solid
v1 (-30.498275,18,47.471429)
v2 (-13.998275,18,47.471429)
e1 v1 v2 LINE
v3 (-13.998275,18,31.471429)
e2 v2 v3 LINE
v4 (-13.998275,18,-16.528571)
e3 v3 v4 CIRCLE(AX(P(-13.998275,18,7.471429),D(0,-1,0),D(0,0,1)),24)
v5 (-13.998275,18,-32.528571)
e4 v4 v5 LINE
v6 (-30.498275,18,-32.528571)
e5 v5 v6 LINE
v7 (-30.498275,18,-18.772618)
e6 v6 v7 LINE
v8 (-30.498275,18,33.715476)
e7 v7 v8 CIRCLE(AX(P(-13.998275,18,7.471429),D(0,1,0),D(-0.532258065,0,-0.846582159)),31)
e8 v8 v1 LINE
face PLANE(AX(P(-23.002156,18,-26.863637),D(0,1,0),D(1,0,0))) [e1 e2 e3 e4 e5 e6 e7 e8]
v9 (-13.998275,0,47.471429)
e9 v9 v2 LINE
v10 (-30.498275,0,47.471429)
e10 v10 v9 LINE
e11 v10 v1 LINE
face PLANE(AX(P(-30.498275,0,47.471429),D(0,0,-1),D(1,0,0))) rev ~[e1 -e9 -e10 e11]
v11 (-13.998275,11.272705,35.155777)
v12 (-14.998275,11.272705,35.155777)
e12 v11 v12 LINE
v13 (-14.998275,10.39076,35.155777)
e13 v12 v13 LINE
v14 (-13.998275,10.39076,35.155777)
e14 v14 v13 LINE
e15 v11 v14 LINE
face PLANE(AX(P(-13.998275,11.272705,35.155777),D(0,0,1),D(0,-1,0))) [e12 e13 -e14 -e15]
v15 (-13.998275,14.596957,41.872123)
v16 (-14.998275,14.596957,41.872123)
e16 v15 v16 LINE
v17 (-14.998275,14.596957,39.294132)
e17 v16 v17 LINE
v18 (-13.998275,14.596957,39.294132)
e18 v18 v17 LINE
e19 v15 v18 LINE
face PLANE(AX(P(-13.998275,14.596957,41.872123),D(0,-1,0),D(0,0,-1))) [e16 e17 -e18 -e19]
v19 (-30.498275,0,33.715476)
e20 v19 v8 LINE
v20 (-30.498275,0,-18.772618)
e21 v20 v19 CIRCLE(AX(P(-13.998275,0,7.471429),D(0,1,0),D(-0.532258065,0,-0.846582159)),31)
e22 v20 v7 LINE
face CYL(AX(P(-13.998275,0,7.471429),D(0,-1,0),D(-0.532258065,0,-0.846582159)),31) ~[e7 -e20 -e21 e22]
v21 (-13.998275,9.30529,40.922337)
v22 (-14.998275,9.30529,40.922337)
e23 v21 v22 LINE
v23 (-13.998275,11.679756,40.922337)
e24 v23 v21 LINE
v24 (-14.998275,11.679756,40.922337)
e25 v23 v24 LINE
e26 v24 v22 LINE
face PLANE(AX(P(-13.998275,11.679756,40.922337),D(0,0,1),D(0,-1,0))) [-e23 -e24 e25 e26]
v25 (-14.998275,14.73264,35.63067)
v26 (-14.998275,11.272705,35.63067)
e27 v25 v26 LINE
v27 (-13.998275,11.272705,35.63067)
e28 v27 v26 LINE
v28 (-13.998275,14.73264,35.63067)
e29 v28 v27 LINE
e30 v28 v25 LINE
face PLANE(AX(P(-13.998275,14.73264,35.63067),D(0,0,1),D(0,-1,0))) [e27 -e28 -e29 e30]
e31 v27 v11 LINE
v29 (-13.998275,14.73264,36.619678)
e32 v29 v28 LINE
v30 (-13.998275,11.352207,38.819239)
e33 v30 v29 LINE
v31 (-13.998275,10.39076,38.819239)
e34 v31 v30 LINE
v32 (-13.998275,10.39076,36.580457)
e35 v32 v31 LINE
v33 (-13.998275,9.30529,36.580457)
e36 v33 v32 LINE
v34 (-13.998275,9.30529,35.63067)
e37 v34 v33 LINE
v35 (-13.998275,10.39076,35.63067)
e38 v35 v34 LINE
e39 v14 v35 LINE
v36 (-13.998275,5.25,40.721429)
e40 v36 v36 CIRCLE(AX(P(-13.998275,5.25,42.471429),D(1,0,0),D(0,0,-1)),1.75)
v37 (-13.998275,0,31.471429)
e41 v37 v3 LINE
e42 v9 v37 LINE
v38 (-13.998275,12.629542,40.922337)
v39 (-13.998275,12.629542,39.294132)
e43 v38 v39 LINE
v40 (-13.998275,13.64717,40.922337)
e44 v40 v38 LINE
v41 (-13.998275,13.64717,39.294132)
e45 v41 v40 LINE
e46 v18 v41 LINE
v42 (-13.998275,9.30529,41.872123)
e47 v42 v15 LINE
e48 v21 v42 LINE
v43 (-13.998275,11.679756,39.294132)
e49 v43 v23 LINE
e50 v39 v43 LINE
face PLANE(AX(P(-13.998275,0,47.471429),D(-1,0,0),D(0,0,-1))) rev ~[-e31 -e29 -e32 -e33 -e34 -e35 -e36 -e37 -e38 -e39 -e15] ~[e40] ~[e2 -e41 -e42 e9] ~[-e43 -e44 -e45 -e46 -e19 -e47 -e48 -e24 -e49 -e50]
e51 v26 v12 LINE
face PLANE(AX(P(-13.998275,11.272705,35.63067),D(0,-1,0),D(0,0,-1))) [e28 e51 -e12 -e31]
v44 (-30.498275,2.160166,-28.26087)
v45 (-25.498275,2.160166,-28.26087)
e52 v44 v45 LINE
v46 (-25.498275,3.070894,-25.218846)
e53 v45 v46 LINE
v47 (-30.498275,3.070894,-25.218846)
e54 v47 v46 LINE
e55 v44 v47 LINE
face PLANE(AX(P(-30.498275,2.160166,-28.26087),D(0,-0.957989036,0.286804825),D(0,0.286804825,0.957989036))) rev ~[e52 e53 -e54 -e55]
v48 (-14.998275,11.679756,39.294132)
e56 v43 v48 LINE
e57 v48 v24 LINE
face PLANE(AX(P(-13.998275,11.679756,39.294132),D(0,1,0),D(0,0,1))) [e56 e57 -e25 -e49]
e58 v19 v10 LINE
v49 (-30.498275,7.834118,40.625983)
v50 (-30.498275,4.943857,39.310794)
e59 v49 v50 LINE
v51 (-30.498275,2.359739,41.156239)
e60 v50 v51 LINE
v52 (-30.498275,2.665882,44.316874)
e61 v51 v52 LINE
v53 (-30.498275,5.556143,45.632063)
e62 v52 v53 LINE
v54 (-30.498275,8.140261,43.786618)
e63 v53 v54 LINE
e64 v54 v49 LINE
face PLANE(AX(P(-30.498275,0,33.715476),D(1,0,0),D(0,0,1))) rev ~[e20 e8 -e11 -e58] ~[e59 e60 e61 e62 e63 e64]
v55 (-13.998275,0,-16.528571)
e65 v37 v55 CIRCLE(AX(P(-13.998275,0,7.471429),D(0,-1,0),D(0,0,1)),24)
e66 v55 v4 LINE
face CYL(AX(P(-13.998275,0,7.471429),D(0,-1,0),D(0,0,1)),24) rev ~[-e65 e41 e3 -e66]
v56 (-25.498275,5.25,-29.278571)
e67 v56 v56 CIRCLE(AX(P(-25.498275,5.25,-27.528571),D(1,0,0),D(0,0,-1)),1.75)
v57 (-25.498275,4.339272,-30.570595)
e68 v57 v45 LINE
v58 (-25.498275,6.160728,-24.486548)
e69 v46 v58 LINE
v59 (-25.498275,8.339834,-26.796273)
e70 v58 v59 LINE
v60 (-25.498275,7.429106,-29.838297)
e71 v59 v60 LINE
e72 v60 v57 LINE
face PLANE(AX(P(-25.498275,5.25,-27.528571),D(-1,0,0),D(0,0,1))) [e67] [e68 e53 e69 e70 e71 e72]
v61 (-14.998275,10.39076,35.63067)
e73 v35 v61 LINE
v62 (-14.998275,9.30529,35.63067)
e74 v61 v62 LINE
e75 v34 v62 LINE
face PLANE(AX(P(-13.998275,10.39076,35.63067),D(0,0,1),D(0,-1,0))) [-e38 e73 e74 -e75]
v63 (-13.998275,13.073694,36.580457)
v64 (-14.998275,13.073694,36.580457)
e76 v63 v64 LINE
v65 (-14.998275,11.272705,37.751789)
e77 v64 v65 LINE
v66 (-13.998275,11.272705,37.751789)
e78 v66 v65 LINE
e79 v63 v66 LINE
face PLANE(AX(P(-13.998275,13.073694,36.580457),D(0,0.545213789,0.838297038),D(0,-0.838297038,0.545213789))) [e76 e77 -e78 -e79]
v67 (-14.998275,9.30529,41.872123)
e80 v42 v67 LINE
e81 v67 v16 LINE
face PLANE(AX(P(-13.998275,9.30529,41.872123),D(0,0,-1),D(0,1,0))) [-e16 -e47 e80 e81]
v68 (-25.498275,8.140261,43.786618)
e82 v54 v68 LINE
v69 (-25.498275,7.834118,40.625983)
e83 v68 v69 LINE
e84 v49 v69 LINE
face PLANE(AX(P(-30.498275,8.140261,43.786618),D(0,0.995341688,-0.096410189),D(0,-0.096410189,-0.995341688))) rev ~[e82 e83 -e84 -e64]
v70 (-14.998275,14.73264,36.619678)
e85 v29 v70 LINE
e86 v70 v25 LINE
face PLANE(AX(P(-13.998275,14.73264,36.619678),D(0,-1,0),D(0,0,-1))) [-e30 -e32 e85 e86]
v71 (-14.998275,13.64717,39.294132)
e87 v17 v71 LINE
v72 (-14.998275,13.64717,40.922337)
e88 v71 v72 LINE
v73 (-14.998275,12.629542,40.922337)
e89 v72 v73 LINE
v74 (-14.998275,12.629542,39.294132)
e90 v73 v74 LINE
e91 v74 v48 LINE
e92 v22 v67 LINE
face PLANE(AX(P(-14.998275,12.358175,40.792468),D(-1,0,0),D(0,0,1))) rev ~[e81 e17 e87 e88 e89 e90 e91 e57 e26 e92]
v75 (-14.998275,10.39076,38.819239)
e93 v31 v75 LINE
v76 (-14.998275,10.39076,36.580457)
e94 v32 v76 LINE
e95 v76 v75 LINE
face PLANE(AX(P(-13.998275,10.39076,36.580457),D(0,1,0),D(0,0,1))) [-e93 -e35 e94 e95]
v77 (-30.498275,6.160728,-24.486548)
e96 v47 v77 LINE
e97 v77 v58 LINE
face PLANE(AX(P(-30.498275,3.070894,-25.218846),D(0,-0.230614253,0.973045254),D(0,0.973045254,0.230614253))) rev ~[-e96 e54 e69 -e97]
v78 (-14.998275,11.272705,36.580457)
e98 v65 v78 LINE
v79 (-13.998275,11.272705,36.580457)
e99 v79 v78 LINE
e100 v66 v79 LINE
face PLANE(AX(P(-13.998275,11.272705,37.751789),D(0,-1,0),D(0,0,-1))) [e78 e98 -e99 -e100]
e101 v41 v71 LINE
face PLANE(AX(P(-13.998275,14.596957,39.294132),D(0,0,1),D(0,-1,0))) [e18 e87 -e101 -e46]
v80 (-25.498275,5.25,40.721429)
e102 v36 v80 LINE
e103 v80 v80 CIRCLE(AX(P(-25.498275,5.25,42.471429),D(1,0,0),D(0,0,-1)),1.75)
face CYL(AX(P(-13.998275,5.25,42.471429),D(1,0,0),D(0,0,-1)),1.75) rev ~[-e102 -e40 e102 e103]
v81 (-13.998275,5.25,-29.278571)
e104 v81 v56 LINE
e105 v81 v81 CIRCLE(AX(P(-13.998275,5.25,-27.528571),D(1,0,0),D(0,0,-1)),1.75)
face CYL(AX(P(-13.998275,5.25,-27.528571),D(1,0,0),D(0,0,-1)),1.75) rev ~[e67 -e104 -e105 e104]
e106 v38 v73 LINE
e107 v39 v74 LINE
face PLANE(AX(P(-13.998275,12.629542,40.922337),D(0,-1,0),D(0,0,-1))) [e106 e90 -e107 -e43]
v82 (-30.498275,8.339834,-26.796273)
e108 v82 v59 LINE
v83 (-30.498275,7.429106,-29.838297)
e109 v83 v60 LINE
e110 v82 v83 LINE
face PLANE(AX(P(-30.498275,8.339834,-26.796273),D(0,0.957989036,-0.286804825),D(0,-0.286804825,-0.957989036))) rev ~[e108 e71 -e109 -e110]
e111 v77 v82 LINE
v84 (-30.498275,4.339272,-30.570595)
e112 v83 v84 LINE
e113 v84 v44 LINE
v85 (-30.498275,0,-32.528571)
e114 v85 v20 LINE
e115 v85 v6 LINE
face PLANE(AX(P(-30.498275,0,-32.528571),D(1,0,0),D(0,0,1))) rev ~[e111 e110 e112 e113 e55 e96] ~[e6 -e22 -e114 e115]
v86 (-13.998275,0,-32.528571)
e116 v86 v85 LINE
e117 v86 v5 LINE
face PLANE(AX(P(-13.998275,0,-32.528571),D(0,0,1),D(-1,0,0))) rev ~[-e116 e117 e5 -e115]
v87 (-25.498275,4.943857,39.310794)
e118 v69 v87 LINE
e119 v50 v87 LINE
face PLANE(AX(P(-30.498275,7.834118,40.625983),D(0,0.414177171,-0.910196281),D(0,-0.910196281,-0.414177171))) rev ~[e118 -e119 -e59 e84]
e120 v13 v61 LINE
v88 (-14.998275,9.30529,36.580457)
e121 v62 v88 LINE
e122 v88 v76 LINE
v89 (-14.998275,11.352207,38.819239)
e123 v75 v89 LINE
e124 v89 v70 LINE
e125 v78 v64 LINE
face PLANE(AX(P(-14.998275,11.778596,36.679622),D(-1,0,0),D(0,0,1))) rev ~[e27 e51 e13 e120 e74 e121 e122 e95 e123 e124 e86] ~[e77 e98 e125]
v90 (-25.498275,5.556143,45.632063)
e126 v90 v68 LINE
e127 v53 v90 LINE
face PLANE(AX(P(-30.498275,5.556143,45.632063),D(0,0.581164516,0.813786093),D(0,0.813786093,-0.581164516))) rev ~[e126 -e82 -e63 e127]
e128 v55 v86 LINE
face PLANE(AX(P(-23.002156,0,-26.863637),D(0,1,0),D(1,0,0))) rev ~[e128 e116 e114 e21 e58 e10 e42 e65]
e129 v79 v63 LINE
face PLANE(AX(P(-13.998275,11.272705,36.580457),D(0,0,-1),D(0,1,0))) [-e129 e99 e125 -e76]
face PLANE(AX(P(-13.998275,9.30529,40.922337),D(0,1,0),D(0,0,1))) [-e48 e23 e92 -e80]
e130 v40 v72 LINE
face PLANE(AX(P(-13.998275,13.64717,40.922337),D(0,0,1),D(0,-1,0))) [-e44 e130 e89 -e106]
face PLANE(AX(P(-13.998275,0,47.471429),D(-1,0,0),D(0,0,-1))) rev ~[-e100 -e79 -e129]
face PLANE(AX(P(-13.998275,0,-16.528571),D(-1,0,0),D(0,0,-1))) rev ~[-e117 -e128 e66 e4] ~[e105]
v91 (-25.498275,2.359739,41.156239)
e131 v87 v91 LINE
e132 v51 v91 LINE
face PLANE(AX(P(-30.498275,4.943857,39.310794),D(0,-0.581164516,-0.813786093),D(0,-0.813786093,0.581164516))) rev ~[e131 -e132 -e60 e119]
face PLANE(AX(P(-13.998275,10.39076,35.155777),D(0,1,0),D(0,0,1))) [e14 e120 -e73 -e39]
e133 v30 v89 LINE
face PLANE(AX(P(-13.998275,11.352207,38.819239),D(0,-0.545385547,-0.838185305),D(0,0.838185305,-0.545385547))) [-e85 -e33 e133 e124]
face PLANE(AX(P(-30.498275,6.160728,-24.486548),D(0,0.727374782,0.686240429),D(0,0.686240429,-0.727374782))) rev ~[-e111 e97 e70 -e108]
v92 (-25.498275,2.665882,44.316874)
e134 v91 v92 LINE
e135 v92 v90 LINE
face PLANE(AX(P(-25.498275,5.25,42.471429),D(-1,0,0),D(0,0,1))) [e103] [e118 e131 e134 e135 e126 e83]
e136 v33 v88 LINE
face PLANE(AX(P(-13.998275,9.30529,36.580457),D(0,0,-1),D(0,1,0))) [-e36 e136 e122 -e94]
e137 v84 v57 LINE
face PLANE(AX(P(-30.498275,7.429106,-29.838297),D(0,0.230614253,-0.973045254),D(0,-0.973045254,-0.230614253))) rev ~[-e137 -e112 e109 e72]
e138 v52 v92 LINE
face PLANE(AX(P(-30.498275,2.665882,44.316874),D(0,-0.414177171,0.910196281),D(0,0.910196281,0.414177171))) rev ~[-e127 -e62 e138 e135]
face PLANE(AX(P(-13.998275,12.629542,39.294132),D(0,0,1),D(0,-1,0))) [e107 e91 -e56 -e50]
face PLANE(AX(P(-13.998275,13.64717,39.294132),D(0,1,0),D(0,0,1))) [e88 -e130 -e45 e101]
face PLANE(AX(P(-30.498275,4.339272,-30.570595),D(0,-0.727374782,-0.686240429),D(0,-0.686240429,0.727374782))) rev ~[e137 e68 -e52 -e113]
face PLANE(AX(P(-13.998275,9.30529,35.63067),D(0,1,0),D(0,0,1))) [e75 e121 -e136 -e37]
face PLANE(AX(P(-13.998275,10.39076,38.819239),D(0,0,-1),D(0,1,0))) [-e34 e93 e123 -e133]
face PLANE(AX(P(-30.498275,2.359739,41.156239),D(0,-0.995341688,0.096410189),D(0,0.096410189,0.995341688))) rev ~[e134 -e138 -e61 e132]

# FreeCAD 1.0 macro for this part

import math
import FreeCAD as App
import Part
import Sketcher

V = App.Vector


def add_polygon(sketch, points):
    """Adds a closed chain of lines whose ends are joined by coincident constraints."""
    first, n = sketch.GeometryCount, len(points)
    for a, b in zip(points, points[1:] + points[:1]):
        sketch.addGeometry(Part.LineSegment(App.Vector(*a, 0), App.Vector(*b, 0)), False)
    for i in range(n):
        sketch.addConstraint(Sketcher.Constraint("Coincident", first + i, 2, first + (i + 1) % n, 1))

doc = App.newDocument("Part")
params = doc.addObject("Spreadsheet::Sheet", "Params")
for row, (alias, value) in enumerate([
    ("sketch1_radius", "31 mm"),
    ("sketch1_radius2", "24 mm"),
    ("sketch1_height", "16 mm"),
    ("sketch1_width", "16.5 mm"),
    ("pad1_length", "18 mm"),
    ("sketch2_diameter", "3.5 mm"),
    ("pocket2_length", "1 mm"),
    ("pocket3_length", "5 mm"),
], start=1):
    params.set(f"A{row}", alias)
    params.set(f"B{row}", "=" + value)
    params.setAlias(f"B{row}", alias)

body = doc.addObject("PartDesign::Body", "Body")

sketch1 = doc.addObject("Sketcher::SketchObject", "Sketch")
body.addObject(sketch1)
sketch1.AttachmentSupport = (doc.XZ_Plane, [""])
sketch1.MapMode = "FlatFace"
sketch1.addGeometry([
    Part.LineSegment(V(-14, -33, 0), V(-30, -33, 0)),
    Part.LineSegment(V(-30, -33, 0), V(-30, -19, 0)),
    Part.ArcOfCircle(Part.Circle(V(-14, 7, 0), V(0, 0, 1), 31), math.radians(122), math.radians(238)),
    Part.LineSegment(V(-30, 34, 0), V(-30, 47, 0)),
    Part.LineSegment(V(-30, 47, 0), V(-14, 47, 0)),
    Part.LineSegment(V(-14, 47, 0), V(-14, 31, 0)),
    Part.ArcOfCircle(Part.Circle(V(-14, 7, 0), V(0, 0, 1), 24), math.radians(90), math.radians(270)),
    Part.LineSegment(V(-14, -17, 0), V(-14, -33, 0)),
], False)
sketch1.addConstraint([
    Sketcher.Constraint("Coincident", 0, 2, 1, 1),
    Sketcher.Constraint("Coincident", 1, 2, 2, 2),
    Sketcher.Constraint("Coincident", 2, 1, 3, 1),
    Sketcher.Constraint("Coincident", 3, 2, 4, 1),
    Sketcher.Constraint("Coincident", 4, 2, 5, 1),
    Sketcher.Constraint("Coincident", 5, 2, 6, 1),
    Sketcher.Constraint("Coincident", 6, 2, 7, 1),
    Sketcher.Constraint("Coincident", 7, 2, 0, 1),
    Sketcher.Constraint("Horizontal", 0),
    Sketcher.Constraint("Vertical", 1),
    Sketcher.Constraint("Vertical", 3),
    Sketcher.Constraint("Horizontal", 4),
    Sketcher.Constraint("Vertical", 5),
    Sketcher.Constraint("Vertical", 7),
    Sketcher.Constraint("Coincident", 6, 3, 2, 3),
    Sketcher.Constraint("Vertical", 1, 2, 2, 1),
    Sketcher.Constraint("Vertical", 6, 3, 4, 2),
    Sketcher.Constraint("Vertical", 5, 2, 6, 2),
    Sketcher.Constraint("Equal", 1, 3),
    Sketcher.Constraint("Radius", 2, 31.0),
    Sketcher.Constraint("Radius", 6, 24.0),
    Sketcher.Constraint("DistanceY", 5, 2, 5, 1, 16.0),
    Sketcher.Constraint("DistanceX", 0, 2, 0, 1, 16.5),
    Sketcher.Constraint("DistanceY", -1, 1, 2, 3, 7.471429),
    Sketcher.Constraint("DistanceX", 2, 3, -1, 1, 13.998275),
])
sketch1.setExpression("Constraints[19]", "Params.sketch1_radius")
sketch1.setExpression("Constraints[20]", "Params.sketch1_radius2")
sketch1.setExpression("Constraints[21]", "Params.sketch1_height")
sketch1.setExpression("Constraints[22]", "Params.sketch1_width")
pad1 = doc.addObject("PartDesign::Pad", "Pad")
body.addObject(pad1)
pad1.Profile = sketch1
pad1.setExpression("Length", "Params.pad1_length")
pad1.Reversed = True

sketch2 = doc.addObject("Sketcher::SketchObject", "Sketch001")
body.addObject(sketch2)
sketch2.AttachmentSupport = (doc.YZ_Plane, [""])
sketch2.MapMode = "FlatFace"
sketch2.AttachmentOffset = App.Placement(V(0, 0, -13.998275), App.Rotation())
sketch2.addGeometry([
    Part.Circle(V(5.2, 42.5, 0), V(0, 0, 1), 1.8),
    Part.Circle(V(5.2, -27.5, 0), V(0, 0, 1), 1.8),
], False)
sketch2.addConstraint([
    Sketcher.Constraint("Equal", 0, 1),
    Sketcher.Constraint("Vertical", 0, 3, 1, 3),
    Sketcher.Constraint("Diameter", 0, 3.5),
    Sketcher.Constraint("DistanceY", 1, 3, 0, 3, 70.0),
    Sketcher.Constraint("DistanceX", -1, 1, 0, 3, 5.25),
    Sketcher.Constraint("DistanceY", -1, 1, 0, 3, 42.471429),
])
sketch2.setExpression("Constraints[2]", "Params.sketch2_diameter")
pocket1 = doc.addObject("PartDesign::Pocket", "Pocket")
body.addObject(pocket1)
pocket1.Profile = sketch2
pocket1.Type = "ThroughAll"

sketch3 = doc.addObject("Sketcher::SketchObject", "Sketch002")
body.addObject(sketch3)
sketch3.AttachmentSupport = (doc.YZ_Plane, [""])
sketch3.MapMode = "FlatFace"
sketch3.AttachmentOffset = App.Placement(V(0, 0, -13.998275), App.Rotation())
add_polygon(sketch3, [(14.6, 39.29), (14.6, 41.87), (9.31, 41.87), (9.31, 40.92), (11.68, 40.92), (11.68, 39.29), (12.63, 39.29), (12.63, 40.92), (13.65, 40.92), (13.65, 39.29)])
add_polygon(sketch3, [(14.73, 35.63), (14.73, 36.62), (11.35, 38.82), (10.39, 38.82), (10.39, 36.58), (9.31, 36.58), (9.31, 35.63), (10.39, 35.63), (10.39, 35.16), (11.27, 35.16), (11.27, 35.63)])
add_polygon(sketch3, [(11.27, 36.58), (11.27, 37.75), (13.07, 36.58)])
sketch3.addConstraint([
    Sketcher.Constraint("Vertical", 0),
    Sketcher.Constraint("Horizontal", 1),
    Sketcher.Constraint("Vertical", 2),
    Sketcher.Constraint("Horizontal", 3),
    Sketcher.Constraint("Vertical", 4),
    Sketcher.Constraint("Horizontal", 5),
    Sketcher.Constraint("Vertical", 6),
    Sketcher.Constraint("Horizontal", 7),
    Sketcher.Constraint("Vertical", 8),
    Sketcher.Constraint("Horizontal", 9),
    Sketcher.Constraint("Vertical", 10),
    Sketcher.Constraint("Horizontal", 12),
    Sketcher.Constraint("Vertical", 13),
    Sketcher.Constraint("Horizontal", 14),
    Sketcher.Constraint("Vertical", 15),
    Sketcher.Constraint("Horizontal", 16),
    Sketcher.Constraint("Vertical", 17),
    Sketcher.Constraint("Horizontal", 18),
    Sketcher.Constraint("Vertical", 19),
    Sketcher.Constraint("Horizontal", 20),
    Sketcher.Constraint("Vertical", 21),
    Sketcher.Constraint("Horizontal", 23),
    Sketcher.Constraint("Horizontal", 3, 2, 6, 2),
    Sketcher.Constraint("Horizontal", 5, 2, 8, 2),
    Sketcher.Constraint("Horizontal", 16, 2, 19, 2),
    Sketcher.Constraint("Horizontal", 14, 2, 22, 2),
    Sketcher.Constraint("Vertical", 2, 2, 14, 2),
    Sketcher.Constraint("Vertical", 13, 2, 16, 2),
    Sketcher.Constraint("Vertical", 19, 2, 21, 2),
    Sketcher.Constraint("Equal", 5, 9),
    Sketcher.Constraint("Equal", 9, 2),
    Sketcher.Constraint("Equal", 2, 15),
    Sketcher.Constraint("DistanceX", 7, 1, 7, 2, 1.017628),
    Sketcher.Constraint("DistanceX", 14, 2, 14, 1, 1.08547),
    Sketcher.Constraint("DistanceX", 23, 2, 23, 1, 1.80099),
    Sketcher.Constraint("DistanceY", 0, 1, 0, 2, 2.577991),
    Sketcher.Constraint("DistanceX", 3, 2, 0, 2, 2.917201),
    Sketcher.Constraint("DistanceX", 5, 2, 10, 2, 2.103098),
    Sketcher.Constraint("DistanceY", 11, 2, 3, 2, 2.103098),
    Sketcher.Constraint("Distance", 11, 4.033039),
    Sketcher.Constraint("Distance", 22, 2.148391),
    Sketcher.Constraint("DistanceX", 1, 2, 1, 1, 5.291667),
    Sketcher.Constraint("DistanceX", 12, 2, 12, 1, 0.961447),
    Sketcher.Constraint("DistanceX", 18, 1, 18, 2, 0.881944),
    Sketcher.Constraint("DistanceY", 10, 1, 10, 2, 0.989007),
    Sketcher.Constraint("DistanceY", 17, 2, 17, 1, 0.474893),
    Sketcher.Constraint("DistanceX", -1, 1, 1, 2, 9.30529),
    Sketcher.Constraint("DistanceY", -1, 1, 4, 2, 39.294132),
])
pocket2 = doc.addObject("PartDesign::Pocket", "Pocket001")
body.addObject(pocket2)
pocket2.Profile = sketch3
pocket2.setExpression("Length", "Params.pocket2_length")

sketch4 = doc.addObject("Sketcher::SketchObject", "Sketch003")
body.addObject(sketch4)
sketch4.AttachmentSupport = (doc.YZ_Plane, [""])
sketch4.MapMode = "FlatFace"
sketch4.AttachmentOffset = App.Placement(V(0, 0, -30.498275), App.Rotation())
add_polygon(sketch4, [(3.1, -25.2), (6.2, -24.5), (8.3, -26.8), (7.4, -29.8), (4.3, -30.6), (2.2, -28.3)])
add_polygon(sketch4, [(2.7, 44.3), (5.6, 45.6), (8.1, 43.8), (7.8, 40.6), (4.9, 39.3), (2.4, 41.2)])
sketch4.addConstraint([
    Sketcher.Constraint("Parallel", 0, 3),
    Sketcher.Constraint("Parallel", 1, 4),
    Sketcher.Constraint("Parallel", 2, 5),
    Sketcher.Constraint("Parallel", 6, 9),
    Sketcher.Constraint("Parallel", 7, 10),
    Sketcher.Constraint("Parallel", 8, 11),
    Sketcher.Constraint("Equal", 0, 1),
    Sketcher.Constraint("Equal", 1, 2),
    Sketcher.Constraint("Equal", 2, 3),
    Sketcher.Constraint("Equal", 5, 6),
    Sketcher.Constraint("Equal", 6, 7),
    Sketcher.Constraint("Equal", 7, 8),
    Sketcher.Constraint("Equal", 8, 9),
    Sketcher.Constraint("DistanceY", 3, 2, 2, 2, 0.732299),
    Sketcher.Constraint("DistanceY", 4, 2, -1, 1, 28.26087),
    Sketcher.Constraint("DistanceX", -1, 1, 7, 2, 8.140261),
    Sketcher.Constraint("DistanceX", -1, 1, 10, 2, 2.359739),
    Sketcher.Constraint("DistanceY", -1, 1, 10, 2, 41.156239),
    Sketcher.Constraint("DistanceX", 0, 2, 2, 2, 1.268378),
    Sketcher.Constraint("DistanceY", 2, 2, 0, 2, 5.351749),
    Sketcher.Constraint("DistanceX", 3, 2, 1, 2, 4.000561),
    Sketcher.Constraint("DistanceY", 0, 2, 6, 2, 70.118611),
    Sketcher.Constraint("DistanceX", 5, 2, 6, 2, 2.485249),
    Sketcher.Constraint("DistanceY", 1, 2, 7, 2, 70.582891),
])
pocket3 = doc.addObject("PartDesign::Pocket", "Pocket002")
body.addObject(pocket3)
pocket3.Profile = sketch4
pocket3.setExpression("Length", "Params.pocket3_length")
pocket3.Reversed = True

doc.recompute()
